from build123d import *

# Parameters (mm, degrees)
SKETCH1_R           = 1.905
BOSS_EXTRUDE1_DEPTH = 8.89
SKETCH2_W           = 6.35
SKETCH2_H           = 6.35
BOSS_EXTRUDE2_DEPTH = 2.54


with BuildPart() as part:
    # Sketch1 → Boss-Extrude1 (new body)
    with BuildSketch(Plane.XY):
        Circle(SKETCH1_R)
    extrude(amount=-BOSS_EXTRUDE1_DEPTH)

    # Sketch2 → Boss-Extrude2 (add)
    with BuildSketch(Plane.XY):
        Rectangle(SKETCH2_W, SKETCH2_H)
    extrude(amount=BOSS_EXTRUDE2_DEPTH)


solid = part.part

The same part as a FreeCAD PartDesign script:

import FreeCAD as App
import Part
import Sketcher
from FreeCAD import Vector
Q = App.Units.Quantity


def add_polygon(sketch, points):
    """Adds a closed chain of lines whose ends are joined by coincident constraints."""
    first, n = sketch.GeometryCount, len(points)
    for a, b in zip(points, points[1:] + points[:1]):
        sketch.addGeometry(Part.LineSegment(App.Vector(*a, 0), App.Vector(*b, 0)), False)
    for i in range(n):
        sketch.addConstraint(Sketcher.Constraint("Coincident", first + i, 2, first + (i + 1) % n, 1))

doc = App.newDocument("Part")
body = doc.addObject("PartDesign::Body", "Body")

# Sketch on XY plane
sketch1 = body.newObject("Sketcher::SketchObject", "Sketch")
sketch1.AttachmentSupport = (doc.getObject("XY_Plane"), [""])
sketch1.MapMode = "FlatFace"
sketch1.addGeometry(Part.Circle(Vector(0, 0, 0), Vector(0, 0, 1), 1.9), False)
sketch1.addConstraint([
    Sketcher.Constraint("Coincident", 0, 3, -1, 1),
    Sketcher.Constraint("Diameter", 0, Q("0.15 in")),
])
pad1 = body.newObject("PartDesign::Pad", "Pad")
pad1.Profile = sketch1
pad1.Length = Q("0.35 in")
pad1.Reversed = True

# Sketch on XY plane
sketch2 = body.newObject("Sketcher::SketchObject", "Sketch001")
sketch2.AttachmentSupport = (doc.getObject("XY_Plane"), [""])
sketch2.MapMode = "FlatFace"
add_polygon(sketch2, [(-3, 3), (-3, -3), (3, -3), (3, 3)])  # lines 0-3
sketch2.addConstraint([
    Sketcher.Constraint("Vertical", 0),
    Sketcher.Constraint("Horizontal", 1),
    Sketcher.Constraint("Vertical", 2),
    Sketcher.Constraint("Horizontal", 3),
    Sketcher.Constraint("Symmetric", 0, 2, 2, 2, -1, 1),
    Sketcher.Constraint("Equal", 3, 0),
    Sketcher.Constraint("DistanceX", 1, 1, 1, 2, Q("0.25 in")),
])
pad2 = body.newObject("PartDesign::Pad", "Pad001")
pad2.Profile = sketch2
pad2.Length = Q("0.1 in")

doc.recompute()
